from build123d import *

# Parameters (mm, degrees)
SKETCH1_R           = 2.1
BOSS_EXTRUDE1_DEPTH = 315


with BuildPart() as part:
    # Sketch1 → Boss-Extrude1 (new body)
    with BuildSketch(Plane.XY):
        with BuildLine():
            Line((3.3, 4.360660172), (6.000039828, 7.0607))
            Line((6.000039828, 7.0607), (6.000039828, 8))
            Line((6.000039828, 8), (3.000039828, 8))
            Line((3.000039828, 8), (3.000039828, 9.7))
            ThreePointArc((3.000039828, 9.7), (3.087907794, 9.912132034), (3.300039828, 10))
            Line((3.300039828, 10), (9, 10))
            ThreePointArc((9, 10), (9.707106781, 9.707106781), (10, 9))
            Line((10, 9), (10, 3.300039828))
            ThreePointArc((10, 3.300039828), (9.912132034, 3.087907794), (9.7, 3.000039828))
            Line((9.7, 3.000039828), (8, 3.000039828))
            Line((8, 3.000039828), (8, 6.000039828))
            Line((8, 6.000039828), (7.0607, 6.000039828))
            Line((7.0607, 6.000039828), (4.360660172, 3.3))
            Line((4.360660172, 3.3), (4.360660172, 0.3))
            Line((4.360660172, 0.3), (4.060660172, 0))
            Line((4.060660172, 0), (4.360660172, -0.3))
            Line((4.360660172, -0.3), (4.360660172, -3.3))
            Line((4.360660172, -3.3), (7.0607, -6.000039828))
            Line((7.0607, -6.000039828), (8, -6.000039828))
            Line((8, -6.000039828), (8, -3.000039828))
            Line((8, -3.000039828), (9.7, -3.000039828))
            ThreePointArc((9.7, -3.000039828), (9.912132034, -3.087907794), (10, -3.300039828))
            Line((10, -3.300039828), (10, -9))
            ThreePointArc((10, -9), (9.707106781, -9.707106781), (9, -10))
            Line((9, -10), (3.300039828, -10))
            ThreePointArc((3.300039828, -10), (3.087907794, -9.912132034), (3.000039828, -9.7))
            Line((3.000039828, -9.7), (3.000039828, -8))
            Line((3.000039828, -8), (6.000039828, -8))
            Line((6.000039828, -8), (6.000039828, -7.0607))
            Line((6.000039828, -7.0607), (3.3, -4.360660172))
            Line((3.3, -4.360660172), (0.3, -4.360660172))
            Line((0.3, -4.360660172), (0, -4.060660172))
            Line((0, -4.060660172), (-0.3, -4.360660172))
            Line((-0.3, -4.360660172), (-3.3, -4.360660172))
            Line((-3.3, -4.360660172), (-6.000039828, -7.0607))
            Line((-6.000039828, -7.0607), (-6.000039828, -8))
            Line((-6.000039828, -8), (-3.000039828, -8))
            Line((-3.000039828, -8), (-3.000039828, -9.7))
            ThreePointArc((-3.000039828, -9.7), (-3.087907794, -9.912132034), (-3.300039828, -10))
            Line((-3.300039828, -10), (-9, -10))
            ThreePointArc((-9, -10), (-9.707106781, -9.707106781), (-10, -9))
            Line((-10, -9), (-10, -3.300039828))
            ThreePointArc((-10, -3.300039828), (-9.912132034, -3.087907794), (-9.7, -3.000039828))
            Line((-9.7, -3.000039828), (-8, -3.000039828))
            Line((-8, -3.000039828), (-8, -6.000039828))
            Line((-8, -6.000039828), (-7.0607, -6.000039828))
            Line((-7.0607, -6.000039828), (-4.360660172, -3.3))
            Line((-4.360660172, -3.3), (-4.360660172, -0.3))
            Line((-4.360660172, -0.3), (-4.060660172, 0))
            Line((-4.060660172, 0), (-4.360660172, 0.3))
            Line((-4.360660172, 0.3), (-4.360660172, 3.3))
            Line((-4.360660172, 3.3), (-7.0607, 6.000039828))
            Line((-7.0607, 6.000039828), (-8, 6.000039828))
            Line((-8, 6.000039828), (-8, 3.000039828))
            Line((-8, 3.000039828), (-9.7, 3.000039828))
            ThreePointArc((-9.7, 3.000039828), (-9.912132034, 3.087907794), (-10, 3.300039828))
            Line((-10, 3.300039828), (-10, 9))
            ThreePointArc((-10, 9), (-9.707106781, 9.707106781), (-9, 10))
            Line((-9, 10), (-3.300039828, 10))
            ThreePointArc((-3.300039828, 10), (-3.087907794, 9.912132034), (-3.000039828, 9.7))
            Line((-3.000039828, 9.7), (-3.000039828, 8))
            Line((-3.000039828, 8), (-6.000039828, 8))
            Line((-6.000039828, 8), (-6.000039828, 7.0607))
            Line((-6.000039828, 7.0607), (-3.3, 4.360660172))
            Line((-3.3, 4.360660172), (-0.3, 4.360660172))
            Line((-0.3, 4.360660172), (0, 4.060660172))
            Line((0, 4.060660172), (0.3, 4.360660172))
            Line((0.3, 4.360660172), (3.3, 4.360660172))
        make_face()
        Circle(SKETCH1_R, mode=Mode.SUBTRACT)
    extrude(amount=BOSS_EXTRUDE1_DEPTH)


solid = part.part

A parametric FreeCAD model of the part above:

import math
import FreeCAD as App
import Part
import Sketcher

doc = App.newDocument("Part")
body = doc.addObject("PartDesign::Body", "Body")

sketch1 = body.newObject("Sketcher::SketchObject", "Sketch")
sketch1.AttachmentSupport = (doc.getObject("XY_Plane"), [""])
sketch1.MapMode = "FlatFace"
sketch1.addGeometry(Part.LineSegment(App.Vector(6, 7.06, 0), App.Vector(3.3, 4.36, 0)), False)
sketch1.addGeometry(Part.LineSegment(App.Vector(3.3, 4.36, 0), App.Vector(0.3, 4.36, 0)), False)
sketch1.addGeometry(Part.LineSegment(App.Vector(0.3, 4.36, 0), App.Vector(0, 4.06, 0)), False)
sketch1.addGeometry(Part.LineSegment(App.Vector(0, 4.06, 0), App.Vector(-0.3, 4.36, 0)), False)
sketch1.addGeometry(Part.LineSegment(App.Vector(-0.3, 4.36, 0), App.Vector(-3.3, 4.36, 0)), False)
sketch1.addGeometry(Part.LineSegment(App.Vector(-3.3, 4.36, 0), App.Vector(-6, 7.06, 0)), False)
sketch1.addGeometry(Part.LineSegment(App.Vector(-6, 7.06, 0), App.Vector(-6, 8, 0)), False)
sketch1.addGeometry(Part.LineSegment(App.Vector(-6, 8, 0), App.Vector(-3, 8, 0)), False)
sketch1.addGeometry(Part.LineSegment(App.Vector(-3, 8, 0), App.Vector(-3, 9.7, 0)), False)
sketch1.addGeometry(Part.ArcOfCircle(Part.Circle(App.Vector(-3.3, 9.7, 0), App.Vector(0, 0, 1), 0.3), math.radians(0), math.radians(90)), False)
sketch1.addGeometry(Part.LineSegment(App.Vector(-3.3, 10, 0), App.Vector(-9, 10, 0)), False)
sketch1.addGeometry(Part.ArcOfCircle(Part.Circle(App.Vector(-9, 9, 0), App.Vector(0, 0, 1), 1), math.radians(90), math.radians(180)), False)
sketch1.addGeometry(Part.LineSegment(App.Vector(-10, 9, 0), App.Vector(-10, 3.3, 0)), False)
sketch1.addGeometry(Part.ArcOfCircle(Part.Circle(App.Vector(-9.7, 3.3, 0), App.Vector(0, 0, 1), 0.3), math.radians(-180), math.radians(-90)), False)
sketch1.addGeometry(Part.LineSegment(App.Vector(-9.7, 3, 0), App.Vector(-8, 3, 0)), False)
sketch1.addGeometry(Part.LineSegment(App.Vector(-8, 3, 0), App.Vector(-8, 6, 0)), False)
sketch1.addGeometry(Part.LineSegment(App.Vector(-8, 6, 0), App.Vector(-7.06, 6, 0)), False)
sketch1.addGeometry(Part.LineSegment(App.Vector(-7.06, 6, 0), App.Vector(-4.36, 3.3, 0)), False)
sketch1.addGeometry(Part.LineSegment(App.Vector(-4.36, 3.3, 0), App.Vector(-4.36, 0.3, 0)), False)
sketch1.addGeometry(Part.LineSegment(App.Vector(-4.36, 0.3, 0), App.Vector(-4.06, 0, 0)), False)
sketch1.addGeometry(Part.LineSegment(App.Vector(-4.06, 0, 0), App.Vector(-4.36, -0.3, 0)), False)
sketch1.addGeometry(Part.LineSegment(App.Vector(-4.36, -0.3, 0), App.Vector(-4.36, -3.3, 0)), False)
sketch1.addGeometry(Part.LineSegment(App.Vector(-4.36, -3.3, 0), App.Vector(-7.06, -6, 0)), False)
sketch1.addGeometry(Part.LineSegment(App.Vector(-7.06, -6, 0), App.Vector(-8, -6, 0)), False)
sketch1.addGeometry(Part.LineSegment(App.Vector(-8, -6, 0), App.Vector(-8, -3, 0)), False)
sketch1.addGeometry(Part.LineSegment(App.Vector(-8, -3, 0), App.Vector(-9.7, -3, 0)), False)
sketch1.addGeometry(Part.ArcOfCircle(Part.Circle(App.Vector(-9.7, -3.3, 0), App.Vector(0, 0, 1), 0.3), math.radians(90), math.radians(180)), False)
sketch1.addGeometry(Part.LineSegment(App.Vector(-10, -3.3, 0), App.Vector(-10, -9, 0)), False)
sketch1.addGeometry(Part.ArcOfCircle(Part.Circle(App.Vector(-9, -9, 0), App.Vector(0, 0, 1), 1), math.radians(-180), math.radians(-90)), False)
sketch1.addGeometry(Part.LineSegment(App.Vector(-9, -10, 0), App.Vector(-3.3, -10, 0)), False)
sketch1.addGeometry(Part.ArcOfCircle(Part.Circle(App.Vector(-3.3, -9.7, 0), App.Vector(0, 0, 1), 0.3), math.radians(-90), math.radians(0)), False)
sketch1.addGeometry(Part.LineSegment(App.Vector(-3, -9.7, 0), App.Vector(-3, -8, 0)), False)
sketch1.addGeometry(Part.LineSegment(App.Vector(-3, -8, 0), App.Vector(-6, -8, 0)), False)
sketch1.addGeometry(Part.LineSegment(App.Vector(-6, -8, 0), App.Vector(-6, -7.06, 0)), False)
sketch1.addGeometry(Part.LineSegment(App.Vector(-6, -7.06, 0), App.Vector(-3.3, -4.36, 0)), False)
sketch1.addGeometry(Part.LineSegment(App.Vector(-3.3, -4.36, 0), App.Vector(-0.3, -4.36, 0)), False)
sketch1.addGeometry(Part.LineSegment(App.Vector(-0.3, -4.36, 0), App.Vector(0, -4.06, 0)), False)
sketch1.addGeometry(Part.LineSegment(App.Vector(0, -4.06, 0), App.Vector(0.3, -4.36, 0)), False)
sketch1.addGeometry(Part.LineSegment(App.Vector(0.3, -4.36, 0), App.Vector(3.3, -4.36, 0)), False)
sketch1.addGeometry(Part.LineSegment(App.Vector(3.3, -4.36, 0), App.Vector(6, -7.06, 0)), False)
sketch1.addGeometry(Part.LineSegment(App.Vector(6, -7.06, 0), App.Vector(6, -8, 0)), False)
sketch1.addGeometry(Part.LineSegment(App.Vector(6, -8, 0), App.Vector(3, -8, 0)), False)
sketch1.addGeometry(Part.LineSegment(App.Vector(3, -8, 0), App.Vector(3, -9.7, 0)), False)
sketch1.addGeometry(Part.ArcOfCircle(Part.Circle(App.Vector(3.3, -9.7, 0), App.Vector(0, 0, 1), 0.3), math.radians(-180), math.radians(-90)), False)
sketch1.addGeometry(Part.LineSegment(App.Vector(3.3, -10, 0), App.Vector(9, -10, 0)), False)
sketch1.addGeometry(Part.ArcOfCircle(Part.Circle(App.Vector(9, -9, 0), App.Vector(0, 0, 1), 1), math.radians(-90), math.radians(0)), False)
sketch1.addGeometry(Part.LineSegment(App.Vector(10, -9, 0), App.Vector(10, -3.3, 0)), False)
sketch1.addGeometry(Part.ArcOfCircle(Part.Circle(App.Vector(9.7, -3.3, 0), App.Vector(0, 0, 1), 0.3), math.radians(0), math.radians(90)), False)
sketch1.addGeometry(Part.LineSegment(App.Vector(9.7, -3, 0), App.Vector(8, -3, 0)), False)
sketch1.addGeometry(Part.LineSegment(App.Vector(8, -3, 0), App.Vector(8, -6, 0)), False)
sketch1.addGeometry(Part.LineSegment(App.Vector(8, -6, 0), App.Vector(7.06, -6, 0)), False)
sketch1.addGeometry(Part.LineSegment(App.Vector(7.06, -6, 0), App.Vector(4.36, -3.3, 0)), False)
sketch1.addGeometry(Part.LineSegment(App.Vector(4.36, -3.3, 0), App.Vector(4.36, -0.3, 0)), False)
sketch1.addGeometry(Part.LineSegment(App.Vector(4.36, -0.3, 0), App.Vector(4.06, 0, 0)), False)
sketch1.addGeometry(Part.LineSegment(App.Vector(4.06, 0, 0), App.Vector(4.36, 0.3, 0)), False)
sketch1.addGeometry(Part.LineSegment(App.Vector(4.36, 0.3, 0), App.Vector(4.36, 3.3, 0)), False)
sketch1.addGeometry(Part.LineSegment(App.Vector(4.36, 3.3, 0), App.Vector(7.06, 6, 0)), False)
sketch1.addGeometry(Part.LineSegment(App.Vector(7.06, 6, 0), App.Vector(8, 6, 0)), False)
sketch1.addGeometry(Part.LineSegment(App.Vector(8, 6, 0), App.Vector(8, 3, 0)), False)
sketch1.addGeometry(Part.LineSegment(App.Vector(8, 3, 0), App.Vector(9.7, 3, 0)), False)
sketch1.addGeometry(Part.ArcOfCircle(Part.Circle(App.Vector(9.7, 3.3, 0), App.Vector(0, 0, 1), 0.3), math.radians(-90), math.radians(0)), False)
sketch1.addGeometry(Part.LineSegment(App.Vector(10, 3.3, 0), App.Vector(10, 9, 0)), False)
sketch1.addGeometry(Part.ArcOfCircle(Part.Circle(App.Vector(9, 9, 0), App.Vector(0, 0, 1), 1), math.radians(0), math.radians(90)), False)
sketch1.addGeometry(Part.LineSegment(App.Vector(9, 10, 0), App.Vector(3.3, 10, 0)), False)
sketch1.addGeometry(Part.ArcOfCircle(Part.Circle(App.Vector(3.3, 9.7, 0), App.Vector(0, 0, 1), 0.3), math.radians(90), math.radians(180)), False)
sketch1.addGeometry(Part.LineSegment(App.Vector(3, 9.7, 0), App.Vector(3, 8, 0)), False)
sketch1.addGeometry(Part.LineSegment(App.Vector(3, 8, 0), App.Vector(6, 8, 0)), False)
sketch1.addGeometry(Part.LineSegment(App.Vector(6, 8, 0), App.Vector(6, 7.06, 0)), False)
sketch1.addGeometry(Part.Circle(App.Vector(0, 0, 0), App.Vector(0, 0, 1), 2.1), False)
sketch1.addConstraint(Sketcher.Constraint("Coincident", 0, 2, 1, 1))
sketch1.addConstraint(Sketcher.Constraint("Coincident", 1, 2, 2, 1))
sketch1.addConstraint(Sketcher.Constraint("Coincident", 2, 2, 3, 1))
sketch1.addConstraint(Sketcher.Constraint("Coincident", 3, 2, 4, 1))
sketch1.addConstraint(Sketcher.Constraint("Coincident", 4, 2, 5, 1))
sketch1.addConstraint(Sketcher.Constraint("Coincident", 5, 2, 6, 1))
sketch1.addConstraint(Sketcher.Constraint("Coincident", 6, 2, 7, 1))
sketch1.addConstraint(Sketcher.Constraint("Coincident", 7, 2, 8, 1))
sketch1.addConstraint(Sketcher.Constraint("Tangent", 8, 2, 9, 1))
sketch1.addConstraint(Sketcher.Constraint("Tangent", 9, 2, 10, 1))
sketch1.addConstraint(Sketcher.Constraint("Tangent", 10, 2, 11, 1))
sketch1.addConstraint(Sketcher.Constraint("Tangent", 11, 2, 12, 1))
sketch1.addConstraint(Sketcher.Constraint("Tangent", 12, 2, 13, 1))
sketch1.addConstraint(Sketcher.Constraint("Tangent", 13, 2, 14, 1))
sketch1.addConstraint(Sketcher.Constraint("Coincident", 14, 2, 15, 1))
sketch1.addConstraint(Sketcher.Constraint("Coincident", 15, 2, 16, 1))
sketch1.addConstraint(Sketcher.Constraint("Coincident", 16, 2, 17, 1))
sketch1.addConstraint(Sketcher.Constraint("Coincident", 17, 2, 18, 1))
sketch1.addConstraint(Sketcher.Constraint("Coincident", 18, 2, 19, 1))
sketch1.addConstraint(Sketcher.Constraint("Coincident", 19, 2, 20, 1))
sketch1.addConstraint(Sketcher.Constraint("Coincident", 20, 2, 21, 1))
sketch1.addConstraint(Sketcher.Constraint("Coincident", 21, 2, 22, 1))
sketch1.addConstraint(Sketcher.Constraint("Coincident", 22, 2, 23, 1))
sketch1.addConstraint(Sketcher.Constraint("Coincident", 23, 2, 24, 1))
sketch1.addConstraint(Sketcher.Constraint("Coincident", 24, 2, 25, 1))
sketch1.addConstraint(Sketcher.Constraint("Tangent", 25, 2, 26, 1))
sketch1.addConstraint(Sketcher.Constraint("Tangent", 26, 2, 27, 1))
sketch1.addConstraint(Sketcher.Constraint("Tangent", 27, 2, 28, 1))
sketch1.addConstraint(Sketcher.Constraint("Tangent", 28, 2, 29, 1))
sketch1.addConstraint(Sketcher.Constraint("Tangent", 29, 2, 30, 1))
sketch1.addConstraint(Sketcher.Constraint("Tangent", 30, 2, 31, 1))
sketch1.addConstraint(Sketcher.Constraint("Coincident", 31, 2, 32, 1))
sketch1.addConstraint(Sketcher.Constraint("Coincident", 32, 2, 33, 1))
sketch1.addConstraint(Sketcher.Constraint("Coincident", 33, 2, 34, 1))
sketch1.addConstraint(Sketcher.Constraint("Coincident", 34, 2, 35, 1))
sketch1.addConstraint(Sketcher.Constraint("Coincident", 35, 2, 36, 1))
sketch1.addConstraint(Sketcher.Constraint("Coincident", 36, 2, 37, 1))
sketch1.addConstraint(Sketcher.Constraint("Coincident", 37, 2, 38, 1))
sketch1.addConstraint(Sketcher.Constraint("Coincident", 38, 2, 39, 1))
sketch1.addConstraint(Sketcher.Constraint("Coincident", 39, 2, 40, 1))
sketch1.addConstraint(Sketcher.Constraint("Coincident", 40, 2, 41, 1))
sketch1.addConstraint(Sketcher.Constraint("Coincident", 41, 2, 42, 1))
sketch1.addConstraint(Sketcher.Constraint("Tangent", 42, 2, 43, 1))
sketch1.addConstraint(Sketcher.Constraint("Tangent", 43, 2, 44, 1))
sketch1.addConstraint(Sketcher.Constraint("Tangent", 44, 2, 45, 1))
sketch1.addConstraint(Sketcher.Constraint("Tangent", 45, 2, 46, 1))
sketch1.addConstraint(Sketcher.Constraint("Tangent", 46, 2, 47, 1))
sketch1.addConstraint(Sketcher.Constraint("Tangent", 47, 2, 48, 1))
sketch1.addConstraint(Sketcher.Constraint("Coincident", 48, 2, 49, 1))
sketch1.addConstraint(Sketcher.Constraint("Coincident", 49, 2, 50, 1))
sketch1.addConstraint(Sketcher.Constraint("Coincident", 50, 2, 51, 1))
sketch1.addConstraint(Sketcher.Constraint("Coincident", 51, 2, 52, 1))
sketch1.addConstraint(Sketcher.Constraint("Coincident", 52, 2, 53, 1))
sketch1.addConstraint(Sketcher.Constraint("Coincident", 53, 2, 54, 1))
sketch1.addConstraint(Sketcher.Constraint("Coincident", 54, 2, 55, 1))
sketch1.addConstraint(Sketcher.Constraint("Coincident", 55, 2, 56, 1))
sketch1.addConstraint(Sketcher.Constraint("Coincident", 56, 2, 57, 1))
sketch1.addConstraint(Sketcher.Constraint("Coincident", 57, 2, 58, 1))
sketch1.addConstraint(Sketcher.Constraint("Coincident", 58, 2, 59, 1))
sketch1.addConstraint(Sketcher.Constraint("Tangent", 59, 2, 60, 1))
sketch1.addConstraint(Sketcher.Constraint("Tangent", 60, 2, 61, 1))
sketch1.addConstraint(Sketcher.Constraint("Tangent", 61, 2, 62, 1))
sketch1.addConstraint(Sketcher.Constraint("Tangent", 62, 2, 63, 1))
sketch1.addConstraint(Sketcher.Constraint("Tangent", 63, 2, 64, 1))
sketch1.addConstraint(Sketcher.Constraint("Tangent", 64, 2, 65, 1))
sketch1.addConstraint(Sketcher.Constraint("Coincident", 65, 2, 66, 1))
sketch1.addConstraint(Sketcher.Constraint("Coincident", 66, 2, 67, 1))
sketch1.addConstraint(Sketcher.Constraint("Coincident", 67, 2, 0, 1))
sketch1.addConstraint(Sketcher.Constraint("Horizontal", 1))
sketch1.addConstraint(Sketcher.Constraint("Horizontal", 4))
sketch1.addConstraint(Sketcher.Constraint("Vertical", 6))
sketch1.addConstraint(Sketcher.Constraint("Horizontal", 7))
sketch1.addConstraint(Sketcher.Constraint("Vertical", 8))
sketch1.addConstraint(Sketcher.Constraint("Horizontal", 10))
sketch1.addConstraint(Sketcher.Constraint("Vertical", 12))
sketch1.addConstraint(Sketcher.Constraint("Horizontal", 14))
sketch1.addConstraint(Sketcher.Constraint("Vertical", 15))
sketch1.addConstraint(Sketcher.Constraint("Horizontal", 16))
sketch1.addConstraint(Sketcher.Constraint("Vertical", 18))
sketch1.addConstraint(Sketcher.Constraint("Vertical", 21))
sketch1.addConstraint(Sketcher.Constraint("Horizontal", 23))
sketch1.addConstraint(Sketcher.Constraint("Vertical", 24))
sketch1.addConstraint(Sketcher.Constraint("Horizontal", 25))
sketch1.addConstraint(Sketcher.Constraint("Vertical", 27))
sketch1.addConstraint(Sketcher.Constraint("Horizontal", 29))
sketch1.addConstraint(Sketcher.Constraint("Vertical", 31))
sketch1.addConstraint(Sketcher.Constraint("Horizontal", 32))
sketch1.addConstraint(Sketcher.Constraint("Vertical", 33))
sketch1.addConstraint(Sketcher.Constraint("Horizontal", 35))
sketch1.addConstraint(Sketcher.Constraint("Horizontal", 38))
sketch1.addConstraint(Sketcher.Constraint("Vertical", 40))
sketch1.addConstraint(Sketcher.Constraint("Horizontal", 41))
sketch1.addConstraint(Sketcher.Constraint("Vertical", 42))
sketch1.addConstraint(Sketcher.Constraint("Horizontal", 44))
sketch1.addConstraint(Sketcher.Constraint("Vertical", 46))
sketch1.addConstraint(Sketcher.Constraint("Horizontal", 48))
sketch1.addConstraint(Sketcher.Constraint("Vertical", 49))
sketch1.addConstraint(Sketcher.Constraint("Horizontal", 50))
sketch1.addConstraint(Sketcher.Constraint("Vertical", 52))
sketch1.addConstraint(Sketcher.Constraint("Vertical", 55))
sketch1.addConstraint(Sketcher.Constraint("Horizontal", 57))
sketch1.addConstraint(Sketcher.Constraint("Vertical", 58))
sketch1.addConstraint(Sketcher.Constraint("Horizontal", 59))
sketch1.addConstraint(Sketcher.Constraint("Vertical", 61))
sketch1.addConstraint(Sketcher.Constraint("Horizontal", 63))
sketch1.addConstraint(Sketcher.Constraint("Vertical", 65))
sketch1.addConstraint(Sketcher.Constraint("Horizontal", 66))
sketch1.addConstraint(Sketcher.Constraint("Vertical", 67))
sketch1.addConstraint(Sketcher.Constraint("Coincident", 68, 3, -1, 1))
sketch1.addConstraint(Sketcher.Constraint("Equal", 9, 13))
sketch1.addConstraint(Sketcher.Constraint("Equal", 13, 26))
sketch1.addConstraint(Sketcher.Constraint("Equal", 11, 28))
sketch1.addConstraint(Sketcher.Constraint("Equal", 26, 30))
sketch1.addConstraint(Sketcher.Constraint("Equal", 30, 43))
sketch1.addConstraint(Sketcher.Constraint("Equal", 28, 45))
sketch1.addConstraint(Sketcher.Constraint("Equal", 43, 47))
sketch1.addConstraint(Sketcher.Constraint("Equal", 47, 60))
sketch1.addConstraint(Sketcher.Constraint("Equal", 45, 62))
sketch1.addConstraint(Sketcher.Constraint("Equal", 60, 64))
sketch1.addConstraint(Sketcher.Constraint("Symmetric", 9, 3, 43, 3, -1, 1))
sketch1.addConstraint(Sketcher.Constraint("Symmetric", 13, 3, 47, 3, -1, 1))
sketch1.addConstraint(Sketcher.Constraint("Symmetric", 26, 3, 60, 3, -1, 1))
sketch1.addConstraint(Sketcher.Constraint("Symmetric", 30, 3, 64, 3, -1, 1))
sketch1.addConstraint(Sketcher.Constraint("Symmetric", 0, 2, 34, 2, -1, 1))
sketch1.addConstraint(Sketcher.Constraint("Symmetric", 2, 2, 36, 2, -1, 1))
sketch1.addConstraint(Sketcher.Constraint("Symmetric", 3, 2, 37, 2, -1, 1))
sketch1.addConstraint(Sketcher.Constraint("Symmetric", 5, 2, 39, 2, -1, 1))
sketch1.addConstraint(Sketcher.Constraint("Symmetric", 15, 2, 49, 2, -1, 1))
sketch1.addConstraint(Sketcher.Constraint("Symmetric", 17, 2, 51, 2, -1, 1))
sketch1.addConstraint(Sketcher.Constraint("Symmetric", 19, 2, 53, 2, -1, 1))
sketch1.addConstraint(Sketcher.Constraint("Symmetric", 20, 2, 54, 2, -1, 1))
sketch1.addConstraint(Sketcher.Constraint("Symmetric", 22, 2, 56, 2, -1, 1))
sketch1.addConstraint(Sketcher.Constraint("Symmetric", 32, 2, 66, 2, -1, 1))
sketch1.addConstraint(Sketcher.Constraint("Symmetric", 30, 3, 43, 3, -2))
sketch1.addConstraint(Sketcher.Constraint("Symmetric", 26, 3, 47, 3, -2))
sketch1.addConstraint(Sketcher.Constraint("Symmetric", 1, 2, 3, 2, -2))
sketch1.addConstraint(Sketcher.Constraint("Symmetric", 33, 2, 39, 2, -2))
sketch1.addConstraint(Sketcher.Constraint("Symmetric", 23, 2, 49, 2, -2))
sketch1.addConstraint(Sketcher.Constraint("Symmetric", 21, 2, 51, 2, -2))
sketch1.addConstraint(Sketcher.Constraint("PointOnObject", 2, 2, -2))
sketch1.addConstraint(Sketcher.Constraint("PointOnObject", 19, 2, -1))
sketch1.addConstraint(Sketcher.Constraint("Parallel", 0, 2))
sketch1.addConstraint(Sketcher.Constraint("Perpendicular", 2, 3))
sketch1.addConstraint(Sketcher.Constraint("Parallel", 3, 5))
sketch1.addConstraint(Sketcher.Constraint("Parallel", 5, 17))
sketch1.addConstraint(Sketcher.Constraint("Parallel", 17, 19))
sketch1.addConstraint(Sketcher.Constraint("Perpendicular", 19, 20))
sketch1.addConstraint(Sketcher.Constraint("Parallel", 20, 22))
sketch1.addConstraint(Sketcher.Constraint("Parallel", 22, 34))
sketch1.addConstraint(Sketcher.Constraint("Parallel", 34, 36))
sketch1.addConstraint(Sketcher.Constraint("Parallel", 37, 39))
sketch1.addConstraint(Sketcher.Constraint("Parallel", 39, 51))
sketch1.addConstraint(Sketcher.Constraint("Parallel", 51, 53))
sketch1.addConstraint(Sketcher.Constraint("Parallel", 54, 56))
sketch1.addConstraint(Sketcher.Constraint("Horizontal", 32, 2, 40, 2))
sketch1.addConstraint(Sketcher.Constraint("Horizontal", 7, 2, 65, 2))
sketch1.addConstraint(Sketcher.Constraint("Vertical", 49, 2, 57, 2))
sketch1.addConstraint(Sketcher.Constraint("Equal", 4, 7))
sketch1.addConstraint(Sketcher.Constraint("Equal", 57, 6))
sketch1.addConstraint(Sketcher.Constraint("Equal", 59, 8))
sketch1.addConstraint(Sketcher.Constraint("Equal", 63, 12))
sketch1.addConstraint(Sketcher.Constraint("Equal", 66, 15))
sketch1.addConstraint(Sketcher.Constraint("Equal", 15, 18))
sketch1.addConstraint(Sketcher.Constraint("Equal", 5, 17))
sketch1.addConstraint(Sketcher.Constraint("Equal", 3, 19))
sketch1.addConstraint(Sketcher.Constraint("Radius", 11, 1.0))
sketch1.addConstraint(Sketcher.Constraint("Diameter", 68, 4.2))
sketch1.addConstraint(Sketcher.Constraint("Radius", 9, 0.3))
sketch1.addConstraint(Sketcher.Constraint("DistanceX", 1, 2, 1, 1, 3.0))
sketch1.addConstraint(Sketcher.Constraint("DistanceX", 14, 1, 14, 2, 1.7))
sketch1.addConstraint(Sketcher.Constraint("DistanceX", 11, 3, -1, 1, 9.0))
sketch1.addConstraint(Sketcher.Constraint("DistanceX", -1, 1, 0, 2, 3.3))
sketch1.addConstraint(Sketcher.Constraint("DistanceX", 16, 1, 16, 2, 0.9393))
sketch1.addConstraint(Sketcher.Constraint("DistanceX", 10, 2, 10, 1, 5.69996))
pad1 = body.newObject("PartDesign::Pad", "Pad")
pad1.Profile = sketch1
pad1.Length = 315

doc.recompute()
